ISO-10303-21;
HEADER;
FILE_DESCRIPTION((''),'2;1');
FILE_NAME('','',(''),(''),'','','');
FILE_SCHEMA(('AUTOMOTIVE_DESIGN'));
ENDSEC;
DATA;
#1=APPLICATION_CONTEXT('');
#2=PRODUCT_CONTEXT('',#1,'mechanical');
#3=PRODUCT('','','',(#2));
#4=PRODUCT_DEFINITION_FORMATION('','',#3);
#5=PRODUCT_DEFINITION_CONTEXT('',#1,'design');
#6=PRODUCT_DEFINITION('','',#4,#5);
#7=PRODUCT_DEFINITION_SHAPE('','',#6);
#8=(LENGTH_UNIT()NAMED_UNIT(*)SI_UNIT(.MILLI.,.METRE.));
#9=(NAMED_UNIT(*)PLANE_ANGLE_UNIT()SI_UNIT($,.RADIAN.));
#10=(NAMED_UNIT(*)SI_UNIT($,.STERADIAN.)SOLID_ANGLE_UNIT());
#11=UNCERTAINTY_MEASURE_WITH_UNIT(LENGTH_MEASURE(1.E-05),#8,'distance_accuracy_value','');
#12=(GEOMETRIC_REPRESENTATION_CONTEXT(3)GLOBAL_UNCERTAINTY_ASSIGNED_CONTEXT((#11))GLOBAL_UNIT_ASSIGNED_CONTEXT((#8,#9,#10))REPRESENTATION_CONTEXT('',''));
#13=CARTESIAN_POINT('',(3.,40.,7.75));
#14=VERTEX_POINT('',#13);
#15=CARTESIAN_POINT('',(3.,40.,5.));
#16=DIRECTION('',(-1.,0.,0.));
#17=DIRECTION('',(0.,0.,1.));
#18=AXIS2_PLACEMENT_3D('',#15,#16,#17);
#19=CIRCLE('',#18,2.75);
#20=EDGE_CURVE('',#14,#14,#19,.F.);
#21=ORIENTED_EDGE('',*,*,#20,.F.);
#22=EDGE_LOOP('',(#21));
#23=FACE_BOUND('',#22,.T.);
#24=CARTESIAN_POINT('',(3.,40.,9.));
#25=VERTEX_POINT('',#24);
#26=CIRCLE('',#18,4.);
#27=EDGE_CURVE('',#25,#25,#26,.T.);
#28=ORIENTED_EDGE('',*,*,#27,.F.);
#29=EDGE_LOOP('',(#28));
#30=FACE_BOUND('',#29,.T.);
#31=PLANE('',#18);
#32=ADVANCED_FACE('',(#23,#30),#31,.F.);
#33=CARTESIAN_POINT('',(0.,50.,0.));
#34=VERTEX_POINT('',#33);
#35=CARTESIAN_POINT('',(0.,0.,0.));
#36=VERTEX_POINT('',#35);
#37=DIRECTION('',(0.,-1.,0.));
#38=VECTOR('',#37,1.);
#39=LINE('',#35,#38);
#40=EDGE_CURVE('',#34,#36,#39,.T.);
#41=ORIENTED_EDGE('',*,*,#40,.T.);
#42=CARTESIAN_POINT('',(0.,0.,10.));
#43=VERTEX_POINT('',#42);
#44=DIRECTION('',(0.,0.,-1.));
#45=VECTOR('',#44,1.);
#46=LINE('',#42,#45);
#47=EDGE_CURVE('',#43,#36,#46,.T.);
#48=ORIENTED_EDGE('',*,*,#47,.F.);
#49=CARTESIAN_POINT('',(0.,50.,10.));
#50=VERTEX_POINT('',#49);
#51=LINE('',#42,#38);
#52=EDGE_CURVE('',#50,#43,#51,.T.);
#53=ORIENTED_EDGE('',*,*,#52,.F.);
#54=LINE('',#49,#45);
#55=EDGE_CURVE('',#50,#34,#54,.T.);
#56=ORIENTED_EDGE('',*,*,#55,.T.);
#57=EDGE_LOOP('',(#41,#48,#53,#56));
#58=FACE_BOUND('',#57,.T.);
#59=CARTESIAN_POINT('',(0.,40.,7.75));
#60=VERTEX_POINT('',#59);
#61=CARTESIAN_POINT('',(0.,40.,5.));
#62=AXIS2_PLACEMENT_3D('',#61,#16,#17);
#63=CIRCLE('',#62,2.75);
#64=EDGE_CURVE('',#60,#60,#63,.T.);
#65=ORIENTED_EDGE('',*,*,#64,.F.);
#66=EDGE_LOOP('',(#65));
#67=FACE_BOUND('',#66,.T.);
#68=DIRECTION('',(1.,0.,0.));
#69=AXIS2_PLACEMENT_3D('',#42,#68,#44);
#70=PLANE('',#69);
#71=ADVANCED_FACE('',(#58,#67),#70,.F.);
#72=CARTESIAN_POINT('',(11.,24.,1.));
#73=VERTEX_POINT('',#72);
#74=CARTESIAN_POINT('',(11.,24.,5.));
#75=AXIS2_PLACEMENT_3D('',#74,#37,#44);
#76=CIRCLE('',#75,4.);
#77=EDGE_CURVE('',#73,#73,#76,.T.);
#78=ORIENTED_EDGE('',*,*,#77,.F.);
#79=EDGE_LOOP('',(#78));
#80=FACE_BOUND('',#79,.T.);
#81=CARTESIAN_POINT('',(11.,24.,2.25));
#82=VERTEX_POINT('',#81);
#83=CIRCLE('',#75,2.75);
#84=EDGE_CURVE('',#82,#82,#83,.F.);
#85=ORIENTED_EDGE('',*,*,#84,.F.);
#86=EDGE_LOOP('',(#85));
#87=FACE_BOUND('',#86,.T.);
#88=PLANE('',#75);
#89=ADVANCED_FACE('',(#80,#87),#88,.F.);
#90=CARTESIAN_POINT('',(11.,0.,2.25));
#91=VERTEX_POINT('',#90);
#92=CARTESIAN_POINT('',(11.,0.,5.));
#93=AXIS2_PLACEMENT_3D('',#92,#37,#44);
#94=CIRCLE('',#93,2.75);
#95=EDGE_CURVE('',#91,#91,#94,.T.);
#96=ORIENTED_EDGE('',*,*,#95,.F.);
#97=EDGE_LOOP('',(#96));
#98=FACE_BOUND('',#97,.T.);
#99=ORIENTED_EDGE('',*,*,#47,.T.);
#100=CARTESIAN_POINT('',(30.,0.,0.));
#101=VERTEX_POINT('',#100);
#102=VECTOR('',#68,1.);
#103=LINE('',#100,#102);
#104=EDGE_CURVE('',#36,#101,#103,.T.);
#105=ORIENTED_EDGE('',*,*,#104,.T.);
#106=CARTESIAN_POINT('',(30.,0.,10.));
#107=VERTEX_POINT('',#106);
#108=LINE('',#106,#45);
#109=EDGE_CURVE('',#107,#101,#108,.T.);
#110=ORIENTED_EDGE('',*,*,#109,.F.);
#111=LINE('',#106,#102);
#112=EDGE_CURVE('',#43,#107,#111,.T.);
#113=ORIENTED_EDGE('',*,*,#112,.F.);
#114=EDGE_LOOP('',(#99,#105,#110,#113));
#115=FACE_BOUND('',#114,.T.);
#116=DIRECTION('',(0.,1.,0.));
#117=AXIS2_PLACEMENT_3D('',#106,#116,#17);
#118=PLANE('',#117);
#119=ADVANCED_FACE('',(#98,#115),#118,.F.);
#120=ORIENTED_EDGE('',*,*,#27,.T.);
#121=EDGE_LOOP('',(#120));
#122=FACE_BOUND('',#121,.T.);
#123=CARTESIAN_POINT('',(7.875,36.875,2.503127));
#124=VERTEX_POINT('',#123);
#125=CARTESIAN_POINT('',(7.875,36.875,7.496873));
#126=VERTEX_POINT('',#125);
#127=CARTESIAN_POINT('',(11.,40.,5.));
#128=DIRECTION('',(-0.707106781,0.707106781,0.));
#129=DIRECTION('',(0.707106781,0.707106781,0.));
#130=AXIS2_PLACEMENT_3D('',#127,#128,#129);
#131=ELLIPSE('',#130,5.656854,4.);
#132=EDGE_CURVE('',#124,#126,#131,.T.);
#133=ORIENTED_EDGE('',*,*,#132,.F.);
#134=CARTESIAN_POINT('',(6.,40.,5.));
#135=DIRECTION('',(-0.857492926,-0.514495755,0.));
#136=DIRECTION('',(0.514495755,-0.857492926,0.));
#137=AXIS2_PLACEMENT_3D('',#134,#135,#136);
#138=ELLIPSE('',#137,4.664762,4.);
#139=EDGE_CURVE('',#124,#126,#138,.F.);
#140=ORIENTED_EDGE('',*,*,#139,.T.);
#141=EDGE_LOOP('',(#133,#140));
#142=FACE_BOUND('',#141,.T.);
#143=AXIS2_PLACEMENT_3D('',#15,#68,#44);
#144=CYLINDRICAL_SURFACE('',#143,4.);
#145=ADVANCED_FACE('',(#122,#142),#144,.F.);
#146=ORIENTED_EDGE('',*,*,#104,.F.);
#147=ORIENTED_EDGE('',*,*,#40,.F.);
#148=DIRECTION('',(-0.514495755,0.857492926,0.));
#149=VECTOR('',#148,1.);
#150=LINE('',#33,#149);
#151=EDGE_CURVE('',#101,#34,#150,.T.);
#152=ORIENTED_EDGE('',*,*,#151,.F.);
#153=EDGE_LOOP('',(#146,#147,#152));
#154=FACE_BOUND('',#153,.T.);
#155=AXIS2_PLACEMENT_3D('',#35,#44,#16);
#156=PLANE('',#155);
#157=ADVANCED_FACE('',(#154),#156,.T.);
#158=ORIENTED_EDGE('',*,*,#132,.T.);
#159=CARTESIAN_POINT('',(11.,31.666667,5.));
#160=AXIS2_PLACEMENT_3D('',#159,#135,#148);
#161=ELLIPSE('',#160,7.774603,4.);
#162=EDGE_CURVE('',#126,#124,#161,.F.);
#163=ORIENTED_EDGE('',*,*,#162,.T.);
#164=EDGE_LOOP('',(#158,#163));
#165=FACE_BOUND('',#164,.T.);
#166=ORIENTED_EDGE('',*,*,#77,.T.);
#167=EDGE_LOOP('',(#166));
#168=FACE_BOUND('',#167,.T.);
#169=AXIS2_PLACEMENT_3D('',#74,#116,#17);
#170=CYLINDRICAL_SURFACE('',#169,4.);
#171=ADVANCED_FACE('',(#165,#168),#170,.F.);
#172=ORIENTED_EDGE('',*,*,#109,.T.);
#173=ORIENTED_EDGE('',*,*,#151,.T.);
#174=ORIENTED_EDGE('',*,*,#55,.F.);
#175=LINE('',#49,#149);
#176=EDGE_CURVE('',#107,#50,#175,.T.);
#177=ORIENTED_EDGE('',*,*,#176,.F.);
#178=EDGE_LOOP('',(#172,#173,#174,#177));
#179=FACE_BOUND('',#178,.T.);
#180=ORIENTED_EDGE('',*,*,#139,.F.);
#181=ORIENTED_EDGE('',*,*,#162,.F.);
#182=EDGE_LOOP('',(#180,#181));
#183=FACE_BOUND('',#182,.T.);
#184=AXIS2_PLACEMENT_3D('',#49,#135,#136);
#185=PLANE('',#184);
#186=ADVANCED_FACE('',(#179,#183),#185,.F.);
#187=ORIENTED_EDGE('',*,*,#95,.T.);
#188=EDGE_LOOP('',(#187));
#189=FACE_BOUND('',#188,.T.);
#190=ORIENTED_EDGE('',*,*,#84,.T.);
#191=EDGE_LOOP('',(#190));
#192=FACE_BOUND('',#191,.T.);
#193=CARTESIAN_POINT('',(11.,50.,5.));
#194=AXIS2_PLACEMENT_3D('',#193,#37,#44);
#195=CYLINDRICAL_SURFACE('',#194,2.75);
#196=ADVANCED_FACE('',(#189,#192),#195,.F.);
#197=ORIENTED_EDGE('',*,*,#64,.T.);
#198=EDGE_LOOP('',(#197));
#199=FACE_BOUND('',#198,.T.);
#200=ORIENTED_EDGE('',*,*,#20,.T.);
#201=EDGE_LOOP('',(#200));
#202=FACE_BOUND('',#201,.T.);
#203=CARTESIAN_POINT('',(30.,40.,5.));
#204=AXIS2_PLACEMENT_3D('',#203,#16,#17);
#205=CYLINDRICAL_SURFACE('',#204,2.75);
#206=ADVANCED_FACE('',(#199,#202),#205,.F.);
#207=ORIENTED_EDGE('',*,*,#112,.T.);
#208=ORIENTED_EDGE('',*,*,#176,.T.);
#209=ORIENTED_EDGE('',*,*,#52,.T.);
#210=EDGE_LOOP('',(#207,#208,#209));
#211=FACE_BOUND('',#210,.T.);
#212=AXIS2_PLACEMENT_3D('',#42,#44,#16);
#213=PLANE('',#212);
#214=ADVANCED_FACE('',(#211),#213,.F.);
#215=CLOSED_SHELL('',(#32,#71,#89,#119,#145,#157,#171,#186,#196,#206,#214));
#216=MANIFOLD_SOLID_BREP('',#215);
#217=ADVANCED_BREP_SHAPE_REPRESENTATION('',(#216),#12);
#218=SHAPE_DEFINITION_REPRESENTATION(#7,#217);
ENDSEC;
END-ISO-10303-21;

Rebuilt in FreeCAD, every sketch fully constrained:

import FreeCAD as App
import Part
import Sketcher
from FreeCAD import Vector


def add_polygon(sketch, points):
    """Adds a closed chain of lines whose ends are joined by coincident constraints."""
    first, n = sketch.GeometryCount, len(points)
    for a, b in zip(points, points[1:] + points[:1]):
        sketch.addGeometry(Part.LineSegment(App.Vector(*a, 0), App.Vector(*b, 0)), False)
    for i in range(n):
        sketch.addConstraint(Sketcher.Constraint("Coincident", first + i, 2, first + (i + 1) % n, 1))

doc = App.newDocument("Part")
body = doc.addObject("PartDesign::Body", "Body")

# Sketch on XY plane
sketch1 = body.newObject("Sketcher::SketchObject", "Sketch")
sketch1.AttachmentSupport = (doc.getObject("XY_Plane"), [""])
sketch1.MapMode = "FlatFace"
add_polygon(sketch1, [(0, 50), (0, 0), (30, 0)])  # lines 0-2
sketch1.addConstraint([
    Sketcher.Constraint("Vertical", 0),
    Sketcher.Constraint("Horizontal", 1),
    Sketcher.Constraint("Coincident", 0, 2, -1, 1),
    Sketcher.Constraint("DistanceX", 1, 1, 1, 2, 30.0),
    Sketcher.Constraint("DistanceY", 0, 2, 0, 1, 50.0),
])
pad1 = body.newObject("PartDesign::Pad", "Pad")
pad1.Profile = sketch1
pad1.Length = 10

# Sketch on XZ plane
sketch2 = body.newObject("Sketcher::SketchObject", "Sketch001")
sketch2.AttachmentSupport = (doc.getObject("XZ_Plane"), [""])
sketch2.MapMode = "FlatFace"
sketch2.addGeometry(Part.Circle(Vector(11, 5, 0), Vector(0, 0, 1), 2.8), False)
sketch2.addConstraint([
    Sketcher.Constraint("Diameter", 0, 5.5),
    Sketcher.Constraint("DistanceX", -1, 1, 0, 3, 11.0),
    Sketcher.Constraint("DistanceY", -1, 1, 0, 3, 5.0),
])
pocket1 = body.newObject("PartDesign::Pocket", "Pocket")
pocket1.Profile = sketch2
pocket1.Type = "ThroughAll"

# Sketch on YZ plane
sketch3 = body.newObject("Sketcher::SketchObject", "Sketch002")
sketch3.AttachmentSupport = (doc.getObject("YZ_Plane"), [""])
sketch3.MapMode = "FlatFace"
sketch3.addGeometry(Part.Circle(Vector(40, 5, 0), Vector(0, 0, 1), 2.8), False)
sketch3.addConstraint([
    Sketcher.Constraint("Diameter", 0, 5.5),
    Sketcher.Constraint("DistanceX", -1, 1, 0, 3, 40.0),
    Sketcher.Constraint("DistanceY", -1, 1, 0, 3, 5.0),
])
pocket2 = body.newObject("PartDesign::Pocket", "Pocket001")
pocket2.Profile = sketch3
pocket2.Type = "ThroughAll"
pocket2.Reversed = True

# Sketch on XZ plane
sketch4 = body.newObject("Sketcher::SketchObject", "Sketch003")
sketch4.AttachmentSupport = (doc.getObject("XZ_Plane"), [""])
sketch4.MapMode = "FlatFace"
sketch4.AttachmentOffset = App.Placement(Vector(0, 0, -50), App.Rotation())
sketch4.addGeometry(Part.Circle(Vector(11, 5, 0), Vector(0, 0, 1), 4), False)
sketch4.addConstraint([
    Sketcher.Constraint("Diameter", 0, 8.0),
    Sketcher.Constraint("DistanceX", -1, 1, 0, 3, 11.0),
    Sketcher.Constraint("DistanceY", -1, 1, 0, 3, 5.0),
])
pocket3 = body.newObject("PartDesign::Pocket", "Pocket002")
pocket3.Profile = sketch4
pocket3.Length = 26
pocket3.Reversed = True

# Sketch on YZ plane
sketch5 = body.newObject("Sketcher::SketchObject", "Sketch004")
sketch5.AttachmentSupport = (doc.getObject("YZ_Plane"), [""])
sketch5.MapMode = "FlatFace"
sketch5.AttachmentOffset = App.Placement(Vector(0, 0, 30), App.Rotation())
sketch5.addGeometry(Part.Circle(Vector(40, 5, 0), Vector(0, 0, 1), 4), False)
sketch5.addConstraint([
    Sketcher.Constraint("Diameter", 0, 8.0),
    Sketcher.Constraint("DistanceX", -1, 1, 0, 3, 40.0),
    Sketcher.Constraint("DistanceY", -1, 1, 0, 3, 5.0),
])
pocket4 = body.newObject("PartDesign::Pocket", "Pocket003")
pocket4.Profile = sketch5
pocket4.Length = 27

doc.recompute()
